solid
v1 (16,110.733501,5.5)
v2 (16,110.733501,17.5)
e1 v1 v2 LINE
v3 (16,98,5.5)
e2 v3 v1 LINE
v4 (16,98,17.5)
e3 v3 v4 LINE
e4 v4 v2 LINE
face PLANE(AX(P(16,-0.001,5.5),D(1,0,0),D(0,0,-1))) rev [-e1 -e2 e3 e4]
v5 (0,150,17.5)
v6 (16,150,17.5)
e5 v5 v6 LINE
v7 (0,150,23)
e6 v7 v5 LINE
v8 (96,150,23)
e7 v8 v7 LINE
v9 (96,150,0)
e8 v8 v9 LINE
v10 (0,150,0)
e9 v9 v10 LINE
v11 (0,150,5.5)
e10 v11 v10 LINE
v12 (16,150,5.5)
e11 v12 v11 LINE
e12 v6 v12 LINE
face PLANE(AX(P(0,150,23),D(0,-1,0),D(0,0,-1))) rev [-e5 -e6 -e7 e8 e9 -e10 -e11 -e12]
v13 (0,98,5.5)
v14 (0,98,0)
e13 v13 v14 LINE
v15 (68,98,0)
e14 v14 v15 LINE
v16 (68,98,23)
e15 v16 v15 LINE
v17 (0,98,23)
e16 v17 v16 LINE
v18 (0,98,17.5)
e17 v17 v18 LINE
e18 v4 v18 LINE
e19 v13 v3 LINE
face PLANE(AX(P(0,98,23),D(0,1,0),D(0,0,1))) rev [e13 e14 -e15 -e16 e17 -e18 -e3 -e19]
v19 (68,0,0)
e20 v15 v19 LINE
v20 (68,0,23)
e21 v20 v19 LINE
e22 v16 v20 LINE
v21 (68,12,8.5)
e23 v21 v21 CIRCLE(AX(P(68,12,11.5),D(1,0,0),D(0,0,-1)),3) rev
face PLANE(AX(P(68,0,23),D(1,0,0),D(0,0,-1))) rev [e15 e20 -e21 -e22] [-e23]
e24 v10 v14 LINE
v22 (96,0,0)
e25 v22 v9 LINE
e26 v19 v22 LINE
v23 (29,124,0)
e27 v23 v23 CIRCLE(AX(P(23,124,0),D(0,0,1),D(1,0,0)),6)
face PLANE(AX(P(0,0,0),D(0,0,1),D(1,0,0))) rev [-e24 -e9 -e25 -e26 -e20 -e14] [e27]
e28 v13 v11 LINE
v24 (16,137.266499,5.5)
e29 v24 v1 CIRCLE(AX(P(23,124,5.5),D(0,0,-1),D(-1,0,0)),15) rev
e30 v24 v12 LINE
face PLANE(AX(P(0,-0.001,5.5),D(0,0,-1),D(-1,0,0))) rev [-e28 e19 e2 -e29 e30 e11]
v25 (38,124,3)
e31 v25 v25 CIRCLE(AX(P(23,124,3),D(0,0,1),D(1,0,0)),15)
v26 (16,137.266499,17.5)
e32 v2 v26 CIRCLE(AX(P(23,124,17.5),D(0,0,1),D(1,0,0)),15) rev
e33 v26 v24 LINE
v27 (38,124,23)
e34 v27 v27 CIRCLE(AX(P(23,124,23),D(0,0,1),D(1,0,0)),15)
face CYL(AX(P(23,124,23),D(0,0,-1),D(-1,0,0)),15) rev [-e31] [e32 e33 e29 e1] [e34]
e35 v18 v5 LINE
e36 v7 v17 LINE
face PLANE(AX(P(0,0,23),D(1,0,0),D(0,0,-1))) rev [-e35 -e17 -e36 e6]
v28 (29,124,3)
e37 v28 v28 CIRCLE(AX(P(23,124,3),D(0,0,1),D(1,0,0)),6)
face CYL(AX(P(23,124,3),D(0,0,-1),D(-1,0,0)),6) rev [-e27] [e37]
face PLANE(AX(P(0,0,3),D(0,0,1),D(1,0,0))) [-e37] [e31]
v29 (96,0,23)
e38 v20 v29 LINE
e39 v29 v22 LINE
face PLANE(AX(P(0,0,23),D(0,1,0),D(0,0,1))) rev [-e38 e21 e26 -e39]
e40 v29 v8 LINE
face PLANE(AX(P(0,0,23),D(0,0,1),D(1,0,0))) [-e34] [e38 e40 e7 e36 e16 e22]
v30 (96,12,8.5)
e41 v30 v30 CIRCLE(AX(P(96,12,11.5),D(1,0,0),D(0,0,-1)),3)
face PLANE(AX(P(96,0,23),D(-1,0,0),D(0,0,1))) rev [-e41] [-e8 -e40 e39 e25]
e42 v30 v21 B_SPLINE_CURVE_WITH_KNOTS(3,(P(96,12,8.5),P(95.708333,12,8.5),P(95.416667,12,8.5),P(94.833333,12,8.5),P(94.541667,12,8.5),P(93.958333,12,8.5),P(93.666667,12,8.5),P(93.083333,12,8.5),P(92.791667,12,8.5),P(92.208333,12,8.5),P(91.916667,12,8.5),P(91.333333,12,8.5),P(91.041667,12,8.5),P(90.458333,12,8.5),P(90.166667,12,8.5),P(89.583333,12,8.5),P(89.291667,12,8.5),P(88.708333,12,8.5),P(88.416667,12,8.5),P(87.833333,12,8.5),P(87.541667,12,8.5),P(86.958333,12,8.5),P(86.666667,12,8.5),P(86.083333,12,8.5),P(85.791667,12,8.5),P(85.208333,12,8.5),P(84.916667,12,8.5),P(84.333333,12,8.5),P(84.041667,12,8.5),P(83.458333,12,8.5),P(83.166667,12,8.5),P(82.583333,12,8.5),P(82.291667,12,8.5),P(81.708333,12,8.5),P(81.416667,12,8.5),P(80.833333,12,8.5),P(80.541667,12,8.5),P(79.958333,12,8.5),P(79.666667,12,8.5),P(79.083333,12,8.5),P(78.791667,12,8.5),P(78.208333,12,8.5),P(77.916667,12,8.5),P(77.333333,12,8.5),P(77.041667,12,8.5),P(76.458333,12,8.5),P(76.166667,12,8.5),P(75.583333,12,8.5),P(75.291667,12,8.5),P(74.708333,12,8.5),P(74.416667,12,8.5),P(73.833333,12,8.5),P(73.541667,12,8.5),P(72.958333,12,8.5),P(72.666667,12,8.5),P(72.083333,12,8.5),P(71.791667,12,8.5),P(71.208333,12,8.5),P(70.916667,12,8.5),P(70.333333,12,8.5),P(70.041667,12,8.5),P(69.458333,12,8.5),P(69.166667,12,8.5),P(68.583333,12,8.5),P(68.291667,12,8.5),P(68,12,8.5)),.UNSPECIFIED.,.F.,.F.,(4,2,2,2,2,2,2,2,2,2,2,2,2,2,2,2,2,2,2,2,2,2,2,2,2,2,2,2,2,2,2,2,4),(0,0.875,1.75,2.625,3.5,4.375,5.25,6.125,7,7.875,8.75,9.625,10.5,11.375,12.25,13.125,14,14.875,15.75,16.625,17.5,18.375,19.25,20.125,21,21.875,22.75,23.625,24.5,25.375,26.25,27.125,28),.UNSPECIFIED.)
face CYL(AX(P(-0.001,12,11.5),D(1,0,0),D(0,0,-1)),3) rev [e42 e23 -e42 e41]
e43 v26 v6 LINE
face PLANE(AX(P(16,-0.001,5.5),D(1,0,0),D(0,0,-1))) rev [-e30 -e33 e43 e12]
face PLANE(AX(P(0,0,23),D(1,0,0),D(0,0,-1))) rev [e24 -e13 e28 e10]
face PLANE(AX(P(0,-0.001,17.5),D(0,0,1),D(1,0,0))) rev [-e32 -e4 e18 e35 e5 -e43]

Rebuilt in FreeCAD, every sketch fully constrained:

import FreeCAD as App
import Part
import Sketcher
Q = App.Units.Quantity

doc = App.newDocument("Part")
params = doc.addObject("Spreadsheet::Sheet", "Params")
for row, (alias, value) in enumerate([
    ("sketch1_diameter", "30 mm"),
    ("sketch1_width", "68 mm"),
    ("sketch1_width2", "28 mm"),
    ("sketch1_height", "52 mm"),
    ("sketch1_height2", "98 mm"),
    ("pad1_length", "23 mm"),
    ("sketch2_diameter", "30 mm"),
    ("sketch2_diameter2", "12 mm"),
    ("pad2_length", "3 mm"),
    ("sketch3_width", "16 mm"),
    ("sketch3_height", "12 mm"),
    ("pocket1_length", "52 mm"),
    ("sketch4_diameter", "6 mm"),
], start=1):
    params.set(f"A{row}", alias)
    params.set(f"B{row}", "=" + value)
    params.setAlias(f"B{row}", alias)

body = doc.addObject("PartDesign::Body", "Body")

# Sketch on XY plane
sketch1 = body.newObject("Sketcher::SketchObject", "Sketch")
sketch1.AttachmentSupport = (doc.getObject("XY_Plane"), [""])
sketch1.MapMode = "FlatFace"
sketch1.addGeometry(Part.LineSegment(App.Vector(0, 150, 0), App.Vector(0, 98, 0)), False)
sketch1.addGeometry(Part.LineSegment(App.Vector(0, 98, 0), App.Vector(68, 98, 0)), False)
sketch1.addGeometry(Part.LineSegment(App.Vector(68, 98, 0), App.Vector(68, 0, 0)), False)
sketch1.addGeometry(Part.LineSegment(App.Vector(68, 0, 0), App.Vector(96, 0, 0)), False)
sketch1.addGeometry(Part.LineSegment(App.Vector(96, 0, 0), App.Vector(96, 150, 0)), False)
sketch1.addGeometry(Part.LineSegment(App.Vector(96, 150, 0), App.Vector(0, 150, 0)), False)
sketch1.addGeometry(Part.Circle(App.Vector(23, 124, 0), App.Vector(0, 0, 1), 15), False)
sketch1.addConstraint(Sketcher.Constraint("Coincident", 0, 2, 1, 1))
sketch1.addConstraint(Sketcher.Constraint("Coincident", 1, 2, 2, 1))
sketch1.addConstraint(Sketcher.Constraint("Coincident", 2, 2, 3, 1))
sketch1.addConstraint(Sketcher.Constraint("Coincident", 3, 2, 4, 1))
sketch1.addConstraint(Sketcher.Constraint("Coincident", 4, 2, 5, 1))
sketch1.addConstraint(Sketcher.Constraint("Coincident", 5, 2, 0, 1))
sketch1.addConstraint(Sketcher.Constraint("Vertical", 0))
sketch1.addConstraint(Sketcher.Constraint("Horizontal", 1))
sketch1.addConstraint(Sketcher.Constraint("Vertical", 2))
sketch1.addConstraint(Sketcher.Constraint("Horizontal", 3))
sketch1.addConstraint(Sketcher.Constraint("Vertical", 4))
sketch1.addConstraint(Sketcher.Constraint("Horizontal", 5))
sketch1.addConstraint(Sketcher.Constraint("PointOnObject", 0, 2, -2))
sketch1.addConstraint(Sketcher.Constraint("PointOnObject", 2, 2, -1))
sketch1.addConstraint(Sketcher.Constraint("Diameter", 6, Q("30 mm")))
sketch1.addConstraint(Sketcher.Constraint("DistanceX", 1, 1, 1, 2, Q("68 mm")))
sketch1.addConstraint(Sketcher.Constraint("DistanceX", 3, 1, 3, 2, Q("28 mm")))
sketch1.addConstraint(Sketcher.Constraint("DistanceY", 0, 2, 0, 1, Q("52 mm")))
sketch1.addConstraint(Sketcher.Constraint("DistanceY", 2, 2, 2, 1, Q("98 mm")))
sketch1.addConstraint(Sketcher.Constraint("DistanceX", -1, 1, 6, 3, Q("23 mm")))
sketch1.addConstraint(Sketcher.Constraint("DistanceY", -1, 1, 6, 3, Q("124 mm")))
sketch1.setExpression("Constraints[14]", "Params.sketch1_diameter")
sketch1.setExpression("Constraints[15]", "Params.sketch1_width")
sketch1.setExpression("Constraints[16]", "Params.sketch1_width2")
sketch1.setExpression("Constraints[17]", "Params.sketch1_height")
sketch1.setExpression("Constraints[18]", "Params.sketch1_height2")
pad1 = body.newObject("PartDesign::Pad", "Pad")
pad1.Profile = sketch1
pad1.setExpression("Length", "Params.pad1_length")

# Sketch on XY plane
sketch2 = body.newObject("Sketcher::SketchObject", "Sketch001")
sketch2.AttachmentSupport = (doc.getObject("XY_Plane"), [""])
sketch2.MapMode = "FlatFace"
sketch2.addGeometry(Part.Circle(App.Vector(23, 124, 0), App.Vector(0, 0, 1), 15), False)
sketch2.addGeometry(Part.Circle(App.Vector(23, 124, 0), App.Vector(0, 0, 1), 6), False)
sketch2.addConstraint(Sketcher.Constraint("Coincident", 1, 3, 0, 3))
sketch2.addConstraint(Sketcher.Constraint("Diameter", 0, Q("30 mm")))
sketch2.addConstraint(Sketcher.Constraint("Diameter", 1, Q("12 mm")))
sketch2.addConstraint(Sketcher.Constraint("DistanceX", -1, 1, 0, 3, Q("23 mm")))
sketch2.addConstraint(Sketcher.Constraint("DistanceY", -1, 1, 0, 3, Q("124 mm")))
sketch2.setExpression("Constraints[1]", "Params.sketch2_diameter")
sketch2.setExpression("Constraints[2]", "Params.sketch2_diameter2")
pad2 = body.newObject("PartDesign::Pad", "Pad001")
pad2.Profile = sketch2
pad2.setExpression("Length", "Params.pad2_length")

# Sketch on XZ plane
sketch3 = body.newObject("Sketcher::SketchObject", "Sketch002")
sketch3.AttachmentSupport = (doc.getObject("XZ_Plane"), [""])
sketch3.MapMode = "FlatFace"
sketch3.AttachmentOffset = App.Placement(App.Vector(0, 0, -150), App.Rotation())
sketch3.addGeometry(Part.LineSegment(App.Vector(0, 6, 0), App.Vector(0, 18, 0)), False)
sketch3.addGeometry(Part.LineSegment(App.Vector(0, 18, 0), App.Vector(16, 18, 0)), False)
sketch3.addGeometry(Part.LineSegment(App.Vector(16, 18, 0), App.Vector(16, 6, 0)), False)
sketch3.addGeometry(Part.LineSegment(App.Vector(16, 6, 0), App.Vector(0, 6, 0)), False)
sketch3.addConstraint(Sketcher.Constraint("Coincident", 0, 2, 1, 1))
sketch3.addConstraint(Sketcher.Constraint("Coincident", 1, 2, 2, 1))
sketch3.addConstraint(Sketcher.Constraint("Coincident", 2, 2, 3, 1))
sketch3.addConstraint(Sketcher.Constraint("Coincident", 3, 2, 0, 1))
sketch3.addConstraint(Sketcher.Constraint("Vertical", 0))
sketch3.addConstraint(Sketcher.Constraint("Horizontal", 1))
sketch3.addConstraint(Sketcher.Constraint("Vertical", 2))
sketch3.addConstraint(Sketcher.Constraint("Horizontal", 3))
sketch3.addConstraint(Sketcher.Constraint("PointOnObject", 0, 2, -2))
sketch3.addConstraint(Sketcher.Constraint("DistanceX", 1, 1, 1, 2, Q("16 mm")))
sketch3.addConstraint(Sketcher.Constraint("DistanceY", 0, 1, 0, 2, Q("12 mm")))
sketch3.addConstraint(Sketcher.Constraint("DistanceY", -1, 1, 0, 2, Q("17.5 mm")))
sketch3.setExpression("Constraints[9]", "Params.sketch3_width")
sketch3.setExpression("Constraints[10]", "Params.sketch3_height")
pocket1 = body.newObject("PartDesign::Pocket", "Pocket")
pocket1.Profile = sketch3
pocket1.setExpression("Length", "Params.pocket1_length")
pocket1.Reversed = True

# Sketch on YZ plane
sketch4 = body.newObject("Sketcher::SketchObject", "Sketch003")
sketch4.AttachmentSupport = (doc.getObject("YZ_Plane"), [""])
sketch4.MapMode = "FlatFace"
sketch4.AttachmentOffset = App.Placement(App.Vector(0, 0, 96), App.Rotation())
sketch4.addGeometry(Part.Circle(App.Vector(12, 11.5, 0), App.Vector(0, 0, 1), 3), False)
sketch4.addConstraint(Sketcher.Constraint("Diameter", 0, Q("6 mm")))
sketch4.addConstraint(Sketcher.Constraint("DistanceX", -1, 1, 0, 3, Q("12 mm")))
sketch4.addConstraint(Sketcher.Constraint("DistanceY", -1, 1, 0, 3, Q("11.5 mm")))
sketch4.setExpression("Constraints[0]", "Params.sketch4_diameter")
pocket2 = body.newObject("PartDesign::Pocket", "Pocket001")
pocket2.Profile = sketch4
pocket2.Type = "UpToFirst"

doc.recompute()
